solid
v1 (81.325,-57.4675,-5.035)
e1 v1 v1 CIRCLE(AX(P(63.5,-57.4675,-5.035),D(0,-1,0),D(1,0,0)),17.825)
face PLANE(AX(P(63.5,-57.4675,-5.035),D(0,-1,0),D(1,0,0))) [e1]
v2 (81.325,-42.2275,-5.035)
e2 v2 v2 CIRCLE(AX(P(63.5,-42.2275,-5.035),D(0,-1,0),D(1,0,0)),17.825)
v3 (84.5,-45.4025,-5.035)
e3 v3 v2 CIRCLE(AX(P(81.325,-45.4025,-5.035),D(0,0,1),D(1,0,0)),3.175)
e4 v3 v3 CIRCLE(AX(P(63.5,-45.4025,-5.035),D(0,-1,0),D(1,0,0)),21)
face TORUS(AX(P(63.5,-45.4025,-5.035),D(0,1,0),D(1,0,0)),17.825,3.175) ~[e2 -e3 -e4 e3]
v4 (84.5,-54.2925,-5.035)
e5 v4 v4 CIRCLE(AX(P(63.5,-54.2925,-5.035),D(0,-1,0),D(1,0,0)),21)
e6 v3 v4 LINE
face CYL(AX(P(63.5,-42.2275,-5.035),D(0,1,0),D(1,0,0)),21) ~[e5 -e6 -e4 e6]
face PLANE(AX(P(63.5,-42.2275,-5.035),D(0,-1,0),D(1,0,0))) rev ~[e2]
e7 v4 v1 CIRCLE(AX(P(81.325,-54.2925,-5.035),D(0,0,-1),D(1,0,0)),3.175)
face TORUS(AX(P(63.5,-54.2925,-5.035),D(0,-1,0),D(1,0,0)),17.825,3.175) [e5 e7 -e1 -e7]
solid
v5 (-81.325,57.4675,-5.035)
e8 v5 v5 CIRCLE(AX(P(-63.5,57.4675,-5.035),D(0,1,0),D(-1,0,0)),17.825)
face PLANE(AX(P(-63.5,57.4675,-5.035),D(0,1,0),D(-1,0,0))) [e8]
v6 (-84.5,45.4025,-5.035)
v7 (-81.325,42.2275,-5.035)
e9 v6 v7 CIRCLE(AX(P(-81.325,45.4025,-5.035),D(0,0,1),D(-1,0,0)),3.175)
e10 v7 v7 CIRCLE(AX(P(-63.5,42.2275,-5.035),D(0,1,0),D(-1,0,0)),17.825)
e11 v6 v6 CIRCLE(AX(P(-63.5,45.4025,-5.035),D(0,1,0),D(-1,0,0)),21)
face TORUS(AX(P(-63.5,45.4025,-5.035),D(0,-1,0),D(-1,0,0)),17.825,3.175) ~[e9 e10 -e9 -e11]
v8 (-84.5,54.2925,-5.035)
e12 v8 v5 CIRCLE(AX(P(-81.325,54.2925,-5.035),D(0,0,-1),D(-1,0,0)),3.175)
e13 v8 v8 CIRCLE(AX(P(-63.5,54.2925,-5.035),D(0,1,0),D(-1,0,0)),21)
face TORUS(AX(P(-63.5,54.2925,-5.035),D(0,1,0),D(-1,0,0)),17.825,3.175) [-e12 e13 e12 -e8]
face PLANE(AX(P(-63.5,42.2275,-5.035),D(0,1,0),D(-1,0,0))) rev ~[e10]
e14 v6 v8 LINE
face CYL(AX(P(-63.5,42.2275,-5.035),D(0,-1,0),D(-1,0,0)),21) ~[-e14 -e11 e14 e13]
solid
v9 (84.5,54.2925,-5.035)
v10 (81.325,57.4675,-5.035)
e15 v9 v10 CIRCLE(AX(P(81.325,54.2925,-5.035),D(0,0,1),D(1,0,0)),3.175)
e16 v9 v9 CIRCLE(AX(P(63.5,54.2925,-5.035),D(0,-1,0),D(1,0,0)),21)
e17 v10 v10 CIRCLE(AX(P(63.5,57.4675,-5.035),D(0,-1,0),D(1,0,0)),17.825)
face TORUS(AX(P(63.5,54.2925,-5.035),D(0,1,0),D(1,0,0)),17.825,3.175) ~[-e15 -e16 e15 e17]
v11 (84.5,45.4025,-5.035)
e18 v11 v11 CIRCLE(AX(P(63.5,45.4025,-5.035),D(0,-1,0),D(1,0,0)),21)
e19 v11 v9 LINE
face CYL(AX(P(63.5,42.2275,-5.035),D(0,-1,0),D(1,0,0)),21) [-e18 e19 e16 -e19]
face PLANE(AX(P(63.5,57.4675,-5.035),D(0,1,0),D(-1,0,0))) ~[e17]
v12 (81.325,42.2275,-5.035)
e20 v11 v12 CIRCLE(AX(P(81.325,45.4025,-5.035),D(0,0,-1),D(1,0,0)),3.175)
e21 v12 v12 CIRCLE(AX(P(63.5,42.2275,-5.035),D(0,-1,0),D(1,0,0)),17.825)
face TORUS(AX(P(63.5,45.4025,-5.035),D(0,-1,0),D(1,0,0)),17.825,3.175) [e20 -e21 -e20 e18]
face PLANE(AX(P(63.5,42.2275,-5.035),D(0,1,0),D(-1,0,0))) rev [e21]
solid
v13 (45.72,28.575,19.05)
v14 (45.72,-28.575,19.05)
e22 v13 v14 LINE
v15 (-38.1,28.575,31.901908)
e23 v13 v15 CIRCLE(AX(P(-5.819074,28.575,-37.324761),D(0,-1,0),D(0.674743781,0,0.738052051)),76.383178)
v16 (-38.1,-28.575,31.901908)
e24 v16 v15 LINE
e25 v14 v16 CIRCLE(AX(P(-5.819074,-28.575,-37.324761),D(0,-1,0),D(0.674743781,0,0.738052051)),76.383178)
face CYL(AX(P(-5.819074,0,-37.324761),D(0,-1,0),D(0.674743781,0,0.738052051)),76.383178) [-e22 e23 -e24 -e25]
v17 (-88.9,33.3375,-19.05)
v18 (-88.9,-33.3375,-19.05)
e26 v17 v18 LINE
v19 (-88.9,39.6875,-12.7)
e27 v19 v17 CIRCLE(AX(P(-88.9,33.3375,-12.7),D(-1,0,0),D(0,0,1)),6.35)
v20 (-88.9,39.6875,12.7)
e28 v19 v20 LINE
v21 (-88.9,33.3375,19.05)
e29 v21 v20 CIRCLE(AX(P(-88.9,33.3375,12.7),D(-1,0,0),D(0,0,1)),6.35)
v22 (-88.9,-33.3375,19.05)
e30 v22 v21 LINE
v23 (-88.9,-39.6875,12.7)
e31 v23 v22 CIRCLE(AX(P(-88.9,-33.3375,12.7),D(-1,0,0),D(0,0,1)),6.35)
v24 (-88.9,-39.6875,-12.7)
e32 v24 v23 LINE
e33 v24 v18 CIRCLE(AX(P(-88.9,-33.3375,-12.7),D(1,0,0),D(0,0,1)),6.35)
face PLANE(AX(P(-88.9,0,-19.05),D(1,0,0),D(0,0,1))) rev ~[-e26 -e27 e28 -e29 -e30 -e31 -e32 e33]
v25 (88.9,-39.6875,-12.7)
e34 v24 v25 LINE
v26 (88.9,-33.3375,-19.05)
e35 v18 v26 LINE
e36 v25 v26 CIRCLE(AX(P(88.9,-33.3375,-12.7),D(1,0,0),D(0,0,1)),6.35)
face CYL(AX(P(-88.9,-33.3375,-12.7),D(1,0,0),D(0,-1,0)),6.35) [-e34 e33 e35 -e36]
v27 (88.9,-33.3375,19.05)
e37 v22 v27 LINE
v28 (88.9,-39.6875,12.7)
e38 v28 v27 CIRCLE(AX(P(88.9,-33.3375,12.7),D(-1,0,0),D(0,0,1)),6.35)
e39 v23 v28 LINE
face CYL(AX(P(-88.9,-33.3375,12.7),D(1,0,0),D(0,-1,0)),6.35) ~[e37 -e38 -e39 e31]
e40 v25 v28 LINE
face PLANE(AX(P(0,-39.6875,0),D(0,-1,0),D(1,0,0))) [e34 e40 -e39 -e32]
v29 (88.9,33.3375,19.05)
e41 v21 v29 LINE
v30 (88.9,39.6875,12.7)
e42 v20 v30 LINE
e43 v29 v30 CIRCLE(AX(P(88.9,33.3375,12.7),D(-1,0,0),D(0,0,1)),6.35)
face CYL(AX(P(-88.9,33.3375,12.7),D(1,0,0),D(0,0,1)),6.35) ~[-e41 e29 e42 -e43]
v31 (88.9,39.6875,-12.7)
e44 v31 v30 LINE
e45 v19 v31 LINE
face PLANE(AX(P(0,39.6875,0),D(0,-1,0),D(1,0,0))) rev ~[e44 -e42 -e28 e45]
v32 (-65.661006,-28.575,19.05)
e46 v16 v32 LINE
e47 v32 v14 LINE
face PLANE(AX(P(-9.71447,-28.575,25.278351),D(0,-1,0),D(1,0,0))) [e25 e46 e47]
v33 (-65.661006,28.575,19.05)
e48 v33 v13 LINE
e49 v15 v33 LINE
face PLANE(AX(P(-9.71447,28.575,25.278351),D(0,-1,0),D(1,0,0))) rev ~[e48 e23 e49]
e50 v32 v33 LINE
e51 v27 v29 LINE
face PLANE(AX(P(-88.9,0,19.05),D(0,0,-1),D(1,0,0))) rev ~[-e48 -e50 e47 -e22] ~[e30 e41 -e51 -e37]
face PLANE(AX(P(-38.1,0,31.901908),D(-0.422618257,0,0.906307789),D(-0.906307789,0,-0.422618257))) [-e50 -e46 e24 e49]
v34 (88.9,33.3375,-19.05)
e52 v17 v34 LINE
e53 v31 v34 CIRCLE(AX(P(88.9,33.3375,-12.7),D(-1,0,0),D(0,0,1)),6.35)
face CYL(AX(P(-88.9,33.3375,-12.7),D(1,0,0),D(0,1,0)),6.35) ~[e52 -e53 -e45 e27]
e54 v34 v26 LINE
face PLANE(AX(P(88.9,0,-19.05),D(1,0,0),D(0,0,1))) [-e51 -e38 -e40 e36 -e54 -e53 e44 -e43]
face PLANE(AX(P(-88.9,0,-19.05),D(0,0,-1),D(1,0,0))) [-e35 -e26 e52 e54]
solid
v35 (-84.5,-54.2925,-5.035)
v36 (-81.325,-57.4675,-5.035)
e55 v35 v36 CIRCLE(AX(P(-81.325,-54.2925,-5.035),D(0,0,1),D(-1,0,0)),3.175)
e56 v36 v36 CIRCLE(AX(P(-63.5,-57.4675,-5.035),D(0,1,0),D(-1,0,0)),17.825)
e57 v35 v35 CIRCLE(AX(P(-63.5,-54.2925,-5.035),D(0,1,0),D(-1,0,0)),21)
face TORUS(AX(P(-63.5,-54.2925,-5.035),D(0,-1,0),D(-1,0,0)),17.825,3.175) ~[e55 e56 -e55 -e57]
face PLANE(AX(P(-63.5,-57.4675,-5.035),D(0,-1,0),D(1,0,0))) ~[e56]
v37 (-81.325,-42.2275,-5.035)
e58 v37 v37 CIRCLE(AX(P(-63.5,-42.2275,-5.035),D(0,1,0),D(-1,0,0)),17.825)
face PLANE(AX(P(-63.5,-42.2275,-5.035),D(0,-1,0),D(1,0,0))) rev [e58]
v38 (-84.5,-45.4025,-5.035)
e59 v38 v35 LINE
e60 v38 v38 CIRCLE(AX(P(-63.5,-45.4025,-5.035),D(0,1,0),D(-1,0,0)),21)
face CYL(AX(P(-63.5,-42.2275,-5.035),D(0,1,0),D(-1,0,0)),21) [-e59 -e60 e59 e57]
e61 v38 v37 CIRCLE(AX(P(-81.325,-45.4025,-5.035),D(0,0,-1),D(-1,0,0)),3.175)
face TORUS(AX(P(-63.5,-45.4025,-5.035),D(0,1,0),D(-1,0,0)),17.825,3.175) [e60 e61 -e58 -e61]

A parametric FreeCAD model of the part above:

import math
import FreeCAD as App
import Part
import Sketcher
Q = App.Units.Quantity


def edges_at(feature, points):
    """Names of the edges that pass closest to the given points."""
    edges = feature.Shape.Edges
    near = lambda p: min(range(len(edges)), key=lambda i: edges[i].distToShape(Part.Vertex(*p))[0])
    return sorted({f"Edge{near(p) + 1}" for p in points})

doc = App.newDocument("Part")
body = doc.addObject("PartDesign::Body", "Body")

# Sketch on XZ plane
sketch1 = doc.addObject("Sketcher::SketchObject", "Sketch")
body.addObject(sketch1)
sketch1.AttachmentSupport = (doc.XZ_Plane, [""])
sketch1.MapMode = "FlatFace"
sketch1.addGeometry(Part.LineSegment(App.Vector(-89, 19, 0), App.Vector(-89, -19, 0)), False)
sketch1.addGeometry(Part.LineSegment(App.Vector(-89, -19, 0), App.Vector(89, -19, 0)), False)
sketch1.addGeometry(Part.LineSegment(App.Vector(89, -19, 0), App.Vector(89, 19, 0)), False)
sketch1.addGeometry(Part.LineSegment(App.Vector(89, 19, 0), App.Vector(-89, 19, 0)), False)
sketch1.addConstraint(Sketcher.Constraint("Coincident", 0, 2, 1, 1))
sketch1.addConstraint(Sketcher.Constraint("Coincident", 1, 2, 2, 1))
sketch1.addConstraint(Sketcher.Constraint("Coincident", 2, 2, 3, 1))
sketch1.addConstraint(Sketcher.Constraint("Coincident", 3, 2, 0, 1))
sketch1.addConstraint(Sketcher.Constraint("Vertical", 0))
sketch1.addConstraint(Sketcher.Constraint("Horizontal", 1))
sketch1.addConstraint(Sketcher.Constraint("Vertical", 2))
sketch1.addConstraint(Sketcher.Constraint("Horizontal", 3))
sketch1.addConstraint(Sketcher.Constraint("Symmetric", 0, 2, 2, 2, -1, 1))
sketch1.addConstraint(Sketcher.Constraint("DistanceX", 1, 1, 1, 2, Q("7 in")))
sketch1.addConstraint(Sketcher.Constraint("DistanceY", 0, 2, 0, 1, Q("1.5 in")))
pad1 = doc.addObject("PartDesign::Pad", "Pad")
body.addObject(pad1)
pad1.Profile = sketch1
pad1.Length = Q("3.125 in")
pad1.Midplane = True
doc.recompute()

fillet = doc.addObject("PartDesign::Fillet", "Fillet")
body.addObject(fillet)
fillet.Base = (pad1, edges_at(pad1, [
    (0, -39.688, 19.05),
    (0, 39.688, 19.05),
    (0, -39.688, -19.05),
    (0, 39.688, -19.05),
]))
fillet.Radius = Q("0.25 in")

# Sketch on XZ plane
sketch2 = doc.addObject("Sketcher::SketchObject", "Sketch001")
body.addObject(sketch2)
sketch2.AttachmentSupport = (doc.XZ_Plane, [""])
sketch2.MapMode = "FlatFace"
sketch2.addGeometry(Part.LineSegment(App.Vector(-66, 19, 0), App.Vector(46, 19, 0)), False)
sketch2.addGeometry(Part.ArcOfCircle(Part.Circle(App.Vector(-6, -37, 0), App.Vector(0, 0, 1), 76), math.radians(48), math.radians(115)), False)
sketch2.addGeometry(Part.LineSegment(App.Vector(-38, 32, 0), App.Vector(-66, 19, 0)), False)
sketch2.addConstraint(Sketcher.Constraint("Coincident", 0, 2, 1, 1))
sketch2.addConstraint(Sketcher.Constraint("Tangent", 1, 2, 2, 1))
sketch2.addConstraint(Sketcher.Constraint("Coincident", 2, 2, 0, 1))
sketch2.addConstraint(Sketcher.Constraint("Horizontal", 0))
sketch2.addConstraint(Sketcher.Constraint("Angle", 2, Q("-155 deg")))
sketch2.addConstraint(Sketcher.Constraint("DistanceX", -1, 1, 0, 2, Q("1.8 in")))
sketch2.addConstraint(Sketcher.Constraint("DistanceX", 1, 2, -1, 1, Q("1.5 in")))
sketch2.addConstraint(Sketcher.Constraint("DistanceY", -1, 1, 0, 2, Q("0.75 in")))
sketch2.addConstraint(Sketcher.Constraint("Radius", 1, 76.383178))
pad2 = doc.addObject("PartDesign::Pad", "Pad001")
body.addObject(pad2)
pad2.Profile = sketch2
pad2.Length = Q("2.25 in")
pad2.Midplane = True
body2 = doc.addObject("PartDesign::Body", "Body001")

# Sketch on XZ plane
sketch3 = doc.addObject("Sketcher::SketchObject", "Sketch002")
body2.addObject(sketch3)
sketch3.AttachmentSupport = (doc.getObject("XZ_Plane001"), [""])
sketch3.MapMode = "FlatFace"
sketch3.AttachmentOffset = App.Placement(App.Vector(0, 0, 1.6625 * 25.4), App.Rotation())
sketch3.addGeometry(Part.Circle(App.Vector(64, -5, 0), App.Vector(0, 0, 1), 21), False)
sketch3.addConstraint(Sketcher.Constraint("DistanceX", -1, 1, 0, 3, Q("2.5 in")))
sketch3.addConstraint(Sketcher.Constraint("Diameter", 0, 42.0))
sketch3.addConstraint(Sketcher.Constraint("DistanceY", 0, 3, -1, 1, 5.035))
pad3 = doc.addObject("PartDesign::Pad", "Pad002")
body2.addObject(pad3)
pad3.Profile = sketch3
pad3.Length = Q("0.6 in")
doc.recompute()

fillet2 = doc.addObject("PartDesign::Fillet", "Fillet001")
body2.addObject(fillet2)
fillet2.Base = (pad3, edges_at(pad3, [(42.5, -57.468, -5.035), (42.5, -42.227, -5.035)]))
fillet2.Radius = Q("0.125 in")
body3 = doc.addObject("PartDesign::Body", "Body002")
doc.recompute()

mirroring = doc.addObject("Part::Mirroring", "Mirroring")
mirroring.Source = body2
mirroring.Base = App.Vector(0, 0, 0)
mirroring.Normal = App.Vector(1, 0, 0)
body3.BaseFeature = mirroring
doc.recompute()
body4 = doc.addObject("PartDesign::Body", "Body003")
doc.recompute()

mirroring2 = doc.addObject("Part::Mirroring", "Mirroring001")
mirroring2.Source = body3
mirroring2.Base = App.Vector(0, 0, 0)
mirroring2.Normal = App.Vector(0, -1, 0)
body4.BaseFeature = mirroring2
doc.recompute()
body5 = doc.addObject("PartDesign::Body", "Body004")
doc.recompute()

mirroring3 = doc.addObject("Part::Mirroring", "Mirroring002")
mirroring3.Source = body2
mirroring3.Base = App.Vector(0, 0, 0)
mirroring3.Normal = App.Vector(0, -1, 0)
body5.BaseFeature = mirroring3
doc.recompute()
mirroring.Visibility = False
mirroring2.Visibility = False
mirroring3.Visibility = False

doc.recompute()
